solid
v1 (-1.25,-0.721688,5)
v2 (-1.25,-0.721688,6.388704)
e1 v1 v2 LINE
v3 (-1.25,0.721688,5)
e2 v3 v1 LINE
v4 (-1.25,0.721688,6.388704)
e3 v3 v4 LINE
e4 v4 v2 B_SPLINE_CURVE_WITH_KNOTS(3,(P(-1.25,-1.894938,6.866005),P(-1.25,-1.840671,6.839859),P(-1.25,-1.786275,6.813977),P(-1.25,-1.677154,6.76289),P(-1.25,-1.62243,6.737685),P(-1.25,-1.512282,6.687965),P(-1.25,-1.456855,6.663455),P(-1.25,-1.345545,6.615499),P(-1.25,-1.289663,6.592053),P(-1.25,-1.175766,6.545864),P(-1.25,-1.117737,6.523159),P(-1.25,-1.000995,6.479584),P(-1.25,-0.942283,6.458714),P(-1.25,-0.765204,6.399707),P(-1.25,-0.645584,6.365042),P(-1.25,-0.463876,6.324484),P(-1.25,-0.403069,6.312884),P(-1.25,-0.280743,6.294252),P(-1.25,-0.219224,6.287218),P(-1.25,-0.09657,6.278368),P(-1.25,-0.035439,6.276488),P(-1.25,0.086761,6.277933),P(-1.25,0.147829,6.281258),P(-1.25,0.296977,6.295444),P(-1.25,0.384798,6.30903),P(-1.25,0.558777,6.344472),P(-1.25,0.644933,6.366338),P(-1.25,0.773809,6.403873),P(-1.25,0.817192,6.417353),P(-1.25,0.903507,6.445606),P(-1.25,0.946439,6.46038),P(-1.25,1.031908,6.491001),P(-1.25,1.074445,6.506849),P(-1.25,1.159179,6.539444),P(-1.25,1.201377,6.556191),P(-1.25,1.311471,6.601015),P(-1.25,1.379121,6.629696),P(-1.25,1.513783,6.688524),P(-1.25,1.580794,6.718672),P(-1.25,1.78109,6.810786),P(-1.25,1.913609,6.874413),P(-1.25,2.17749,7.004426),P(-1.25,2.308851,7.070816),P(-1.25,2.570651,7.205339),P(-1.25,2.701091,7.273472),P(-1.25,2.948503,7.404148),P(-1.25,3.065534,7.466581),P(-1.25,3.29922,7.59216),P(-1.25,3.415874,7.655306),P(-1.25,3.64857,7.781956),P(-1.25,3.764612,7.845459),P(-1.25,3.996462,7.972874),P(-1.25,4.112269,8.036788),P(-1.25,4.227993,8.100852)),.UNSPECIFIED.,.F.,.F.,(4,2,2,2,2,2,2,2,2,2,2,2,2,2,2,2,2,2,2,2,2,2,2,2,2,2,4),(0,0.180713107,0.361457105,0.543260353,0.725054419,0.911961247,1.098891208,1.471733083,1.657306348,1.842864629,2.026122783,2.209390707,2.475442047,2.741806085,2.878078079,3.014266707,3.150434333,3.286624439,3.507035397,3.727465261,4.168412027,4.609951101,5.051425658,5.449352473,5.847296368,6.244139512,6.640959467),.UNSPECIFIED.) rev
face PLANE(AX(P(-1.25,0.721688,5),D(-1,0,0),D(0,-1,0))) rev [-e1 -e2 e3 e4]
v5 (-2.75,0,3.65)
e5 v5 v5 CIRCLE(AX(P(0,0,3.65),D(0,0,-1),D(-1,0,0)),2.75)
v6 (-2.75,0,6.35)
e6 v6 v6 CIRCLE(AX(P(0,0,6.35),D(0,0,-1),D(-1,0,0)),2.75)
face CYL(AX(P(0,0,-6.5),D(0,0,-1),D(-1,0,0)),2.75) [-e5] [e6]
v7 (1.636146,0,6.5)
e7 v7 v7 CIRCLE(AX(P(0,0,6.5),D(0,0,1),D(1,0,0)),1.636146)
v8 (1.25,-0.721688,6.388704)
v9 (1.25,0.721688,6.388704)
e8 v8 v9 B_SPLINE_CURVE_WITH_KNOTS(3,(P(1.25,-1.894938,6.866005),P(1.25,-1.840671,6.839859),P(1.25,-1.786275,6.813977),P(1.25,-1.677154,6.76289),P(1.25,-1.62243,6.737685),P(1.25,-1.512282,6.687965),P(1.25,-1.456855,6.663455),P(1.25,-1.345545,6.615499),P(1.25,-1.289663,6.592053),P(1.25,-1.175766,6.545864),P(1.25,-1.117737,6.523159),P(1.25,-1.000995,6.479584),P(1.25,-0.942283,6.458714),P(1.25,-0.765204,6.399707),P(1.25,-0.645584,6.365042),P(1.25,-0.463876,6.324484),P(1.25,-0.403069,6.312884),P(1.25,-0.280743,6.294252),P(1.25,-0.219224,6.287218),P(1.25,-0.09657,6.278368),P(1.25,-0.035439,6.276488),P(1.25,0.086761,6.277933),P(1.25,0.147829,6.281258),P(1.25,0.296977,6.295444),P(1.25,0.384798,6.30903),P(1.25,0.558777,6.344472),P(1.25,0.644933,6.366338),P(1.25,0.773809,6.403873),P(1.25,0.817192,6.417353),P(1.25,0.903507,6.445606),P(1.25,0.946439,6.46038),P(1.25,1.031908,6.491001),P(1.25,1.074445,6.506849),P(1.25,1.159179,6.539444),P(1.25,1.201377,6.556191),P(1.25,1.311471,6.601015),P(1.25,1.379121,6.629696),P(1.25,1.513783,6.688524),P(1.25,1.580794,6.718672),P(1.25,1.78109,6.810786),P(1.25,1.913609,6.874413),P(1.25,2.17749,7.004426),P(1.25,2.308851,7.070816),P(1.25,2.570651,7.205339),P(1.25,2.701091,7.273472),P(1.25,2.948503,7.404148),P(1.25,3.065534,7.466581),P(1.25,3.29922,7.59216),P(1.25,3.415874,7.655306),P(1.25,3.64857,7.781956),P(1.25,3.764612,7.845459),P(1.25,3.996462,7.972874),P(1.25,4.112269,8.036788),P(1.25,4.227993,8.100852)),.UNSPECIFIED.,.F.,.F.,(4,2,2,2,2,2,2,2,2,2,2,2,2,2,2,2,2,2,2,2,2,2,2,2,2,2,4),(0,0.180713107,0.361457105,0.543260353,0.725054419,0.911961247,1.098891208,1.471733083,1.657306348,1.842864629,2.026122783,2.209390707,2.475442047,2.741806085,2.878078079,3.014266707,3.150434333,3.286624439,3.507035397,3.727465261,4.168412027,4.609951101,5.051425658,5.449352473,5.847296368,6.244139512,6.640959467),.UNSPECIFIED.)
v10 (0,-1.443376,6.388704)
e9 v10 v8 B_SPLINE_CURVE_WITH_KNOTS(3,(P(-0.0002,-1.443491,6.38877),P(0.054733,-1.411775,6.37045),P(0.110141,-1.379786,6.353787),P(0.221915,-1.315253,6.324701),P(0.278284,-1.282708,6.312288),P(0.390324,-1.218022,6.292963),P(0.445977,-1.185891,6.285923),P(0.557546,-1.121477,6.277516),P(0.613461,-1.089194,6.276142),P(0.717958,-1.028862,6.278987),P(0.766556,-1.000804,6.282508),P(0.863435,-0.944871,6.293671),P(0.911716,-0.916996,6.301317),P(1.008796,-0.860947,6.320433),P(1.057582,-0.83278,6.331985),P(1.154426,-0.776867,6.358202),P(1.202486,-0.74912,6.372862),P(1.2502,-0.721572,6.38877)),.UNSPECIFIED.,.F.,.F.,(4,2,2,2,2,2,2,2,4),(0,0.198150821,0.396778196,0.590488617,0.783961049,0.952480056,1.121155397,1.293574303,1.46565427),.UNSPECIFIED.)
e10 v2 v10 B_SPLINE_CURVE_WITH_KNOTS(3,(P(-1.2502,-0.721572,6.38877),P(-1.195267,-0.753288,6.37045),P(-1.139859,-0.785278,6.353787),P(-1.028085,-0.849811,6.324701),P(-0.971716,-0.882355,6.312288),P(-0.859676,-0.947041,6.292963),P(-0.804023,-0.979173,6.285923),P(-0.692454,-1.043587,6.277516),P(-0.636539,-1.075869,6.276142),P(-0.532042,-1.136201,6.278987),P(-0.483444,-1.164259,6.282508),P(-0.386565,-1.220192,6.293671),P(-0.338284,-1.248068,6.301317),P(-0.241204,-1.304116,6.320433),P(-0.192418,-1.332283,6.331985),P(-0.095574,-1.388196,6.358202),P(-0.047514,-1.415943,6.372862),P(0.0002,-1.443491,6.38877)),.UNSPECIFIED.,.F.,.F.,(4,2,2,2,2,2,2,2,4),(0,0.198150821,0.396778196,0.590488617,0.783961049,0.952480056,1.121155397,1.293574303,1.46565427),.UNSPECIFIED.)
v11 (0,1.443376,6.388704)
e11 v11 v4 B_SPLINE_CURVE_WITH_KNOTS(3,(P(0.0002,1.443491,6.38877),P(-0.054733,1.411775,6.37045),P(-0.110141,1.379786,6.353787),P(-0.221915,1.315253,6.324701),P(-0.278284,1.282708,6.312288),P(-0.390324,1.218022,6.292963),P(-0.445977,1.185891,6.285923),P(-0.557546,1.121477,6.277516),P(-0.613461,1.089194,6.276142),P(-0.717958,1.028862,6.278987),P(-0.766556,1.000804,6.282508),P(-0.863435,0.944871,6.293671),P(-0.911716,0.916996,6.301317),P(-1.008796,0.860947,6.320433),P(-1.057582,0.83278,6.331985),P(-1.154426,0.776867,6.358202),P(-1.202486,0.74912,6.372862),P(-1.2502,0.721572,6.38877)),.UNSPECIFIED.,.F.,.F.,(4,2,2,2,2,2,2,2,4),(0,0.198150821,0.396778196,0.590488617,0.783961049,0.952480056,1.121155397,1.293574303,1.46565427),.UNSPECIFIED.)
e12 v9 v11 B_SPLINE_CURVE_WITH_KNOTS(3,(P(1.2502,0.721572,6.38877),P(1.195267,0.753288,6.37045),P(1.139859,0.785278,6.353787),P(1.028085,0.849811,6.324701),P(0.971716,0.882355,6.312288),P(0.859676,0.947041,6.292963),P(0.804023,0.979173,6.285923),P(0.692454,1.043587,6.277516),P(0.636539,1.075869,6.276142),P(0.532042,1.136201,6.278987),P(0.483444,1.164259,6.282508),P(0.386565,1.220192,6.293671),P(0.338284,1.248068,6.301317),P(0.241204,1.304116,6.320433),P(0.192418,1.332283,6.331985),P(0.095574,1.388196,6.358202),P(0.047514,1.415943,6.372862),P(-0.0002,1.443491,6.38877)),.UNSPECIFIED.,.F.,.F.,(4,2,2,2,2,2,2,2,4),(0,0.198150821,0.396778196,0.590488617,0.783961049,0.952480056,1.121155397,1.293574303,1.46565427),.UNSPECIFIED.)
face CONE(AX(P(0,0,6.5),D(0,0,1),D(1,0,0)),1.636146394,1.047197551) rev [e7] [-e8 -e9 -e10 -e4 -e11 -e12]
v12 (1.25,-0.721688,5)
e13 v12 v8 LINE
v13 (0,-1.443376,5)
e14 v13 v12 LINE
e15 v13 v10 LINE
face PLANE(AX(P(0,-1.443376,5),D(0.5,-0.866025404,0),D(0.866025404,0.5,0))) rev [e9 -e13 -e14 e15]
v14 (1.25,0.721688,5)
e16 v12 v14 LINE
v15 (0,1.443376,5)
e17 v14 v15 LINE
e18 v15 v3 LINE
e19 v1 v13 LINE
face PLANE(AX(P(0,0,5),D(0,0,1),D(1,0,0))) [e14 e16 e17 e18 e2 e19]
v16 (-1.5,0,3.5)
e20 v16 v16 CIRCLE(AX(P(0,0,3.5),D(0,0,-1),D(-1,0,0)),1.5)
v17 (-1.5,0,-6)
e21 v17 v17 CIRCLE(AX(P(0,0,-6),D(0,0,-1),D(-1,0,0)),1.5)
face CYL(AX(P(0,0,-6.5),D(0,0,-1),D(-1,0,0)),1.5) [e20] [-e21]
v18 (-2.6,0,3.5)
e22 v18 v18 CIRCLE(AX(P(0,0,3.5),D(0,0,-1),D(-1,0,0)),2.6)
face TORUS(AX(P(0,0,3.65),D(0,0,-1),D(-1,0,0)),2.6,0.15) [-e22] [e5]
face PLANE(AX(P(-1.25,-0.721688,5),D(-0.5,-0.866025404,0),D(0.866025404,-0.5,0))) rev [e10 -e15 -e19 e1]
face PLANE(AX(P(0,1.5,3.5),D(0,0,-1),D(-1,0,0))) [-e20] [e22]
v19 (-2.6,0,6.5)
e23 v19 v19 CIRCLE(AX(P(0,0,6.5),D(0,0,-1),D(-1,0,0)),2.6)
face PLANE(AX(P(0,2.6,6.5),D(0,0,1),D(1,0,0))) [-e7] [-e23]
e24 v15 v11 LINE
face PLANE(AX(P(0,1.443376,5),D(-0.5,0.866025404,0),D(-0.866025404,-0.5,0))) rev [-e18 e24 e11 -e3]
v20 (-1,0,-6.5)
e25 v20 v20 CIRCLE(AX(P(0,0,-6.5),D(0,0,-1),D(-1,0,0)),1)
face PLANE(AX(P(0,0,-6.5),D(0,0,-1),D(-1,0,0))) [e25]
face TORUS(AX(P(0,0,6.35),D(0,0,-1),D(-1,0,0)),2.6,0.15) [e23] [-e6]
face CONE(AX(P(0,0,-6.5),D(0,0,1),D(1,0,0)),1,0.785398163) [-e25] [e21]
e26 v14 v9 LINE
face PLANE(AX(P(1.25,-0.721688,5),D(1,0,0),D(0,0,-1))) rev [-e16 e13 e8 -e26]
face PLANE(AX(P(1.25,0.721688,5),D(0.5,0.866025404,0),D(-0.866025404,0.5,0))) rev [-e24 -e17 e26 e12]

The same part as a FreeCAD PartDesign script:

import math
import FreeCAD as App
import Part
import Sketcher

V = App.Vector
Q = App.Units.Quantity

doc = App.newDocument("Part")
body = doc.addObject("PartDesign::Body", "Body")

sketch1 = doc.addObject("Sketcher::SketchObject", "Sketch")
body.addObject(sketch1)
sketch1.AttachmentSupport = (doc.YZ_Plane, [""])
sketch1.MapMode = "FlatFace"
sketch1.addGeometry([
    Part.LineSegment(V(0, -6.5, 0), V(1, -6.5, 0)),
    Part.LineSegment(V(1, -6.5, 0), V(1.5, -6, 0)),
    Part.LineSegment(V(1.5, -6, 0), V(1.5, 3.5, 0)),
    Part.LineSegment(V(1.5, 3.5, 0), V(2.6, 3.5, 0)),
    Part.ArcOfCircle(Part.Circle(V(2.6, 3.65, 0), V(0, 0, 1), 0.15), math.radians(-90), math.radians(0)),
    Part.LineSegment(V(2.75, 3.65, 0), V(2.75, 6.35, 0)),
    Part.ArcOfCircle(Part.Circle(V(2.6, 6.35, 0), V(0, 0, 1), 0.15), math.radians(0), math.radians(90)),
    Part.LineSegment(V(2.6, 6.5, 0), V(0, 6.5, 0)),
    Part.LineSegment(V(0, 6.5, 0), V(0, -6.5, 0)),
], False)
sketch1.addConstraint([
    Sketcher.Constraint("Coincident", 0, 2, 1, 1),
    Sketcher.Constraint("Coincident", 1, 2, 2, 1),
    Sketcher.Constraint("Coincident", 2, 2, 3, 1),
    Sketcher.Constraint("Tangent", 3, 2, 4, 1),
    Sketcher.Constraint("Tangent", 4, 2, 5, 1),
    Sketcher.Constraint("Tangent", 5, 2, 6, 1),
    Sketcher.Constraint("Tangent", 6, 2, 7, 1),
    Sketcher.Constraint("Coincident", 7, 2, 8, 1),
    Sketcher.Constraint("Coincident", 8, 2, 0, 1),
    Sketcher.Constraint("Horizontal", 0),
    Sketcher.Constraint("Vertical", 2),
    Sketcher.Constraint("Horizontal", 3),
    Sketcher.Constraint("Vertical", 5),
    Sketcher.Constraint("Horizontal", 7),
    Sketcher.Constraint("Vertical", 8),
    Sketcher.Constraint("Equal", 4, 6),
    Sketcher.Constraint("Symmetric", 7, 2, 8, 2, -1, 1),
    Sketcher.Constraint("DistanceX", 0, 1, 0, 2, Q("1 mm")),
    Sketcher.Constraint("DistanceY", 8, 2, 8, 1, Q("13 mm")),
    Sketcher.Constraint("Angle", 1, Q("45 deg")),
    Sketcher.Constraint("Radius", 4, Q("0.15 mm")),
    Sketcher.Constraint("DistanceX", 3, 1, 3, 2, Q("1.1 mm")),
    Sketcher.Constraint("DistanceX", 7, 2, 7, 1, Q("2.6 mm")),
    Sketcher.Constraint("DistanceY", 2, 1, 2, 2, Q("9.5 mm")),
])
revolution = doc.addObject("PartDesign::Revolution", "Revolution")
body.addObject(revolution)
revolution.Profile = sketch1
revolution.ReferenceAxis = (sketch1, ["V_Axis"])
revolution.Angle = 360

sketch2 = doc.addObject("Sketcher::SketchObject", "Sketch001")
body.addObject(sketch2)
sketch2.AttachmentSupport = (doc.XY_Plane, [""])
sketch2.MapMode = "FlatFace"
sketch2.AttachmentOffset = App.Placement(V(0, 0, 6.5), App.Rotation())
sketch2.addGeometry([
    Part.LineSegment(V(-1.25, 0.721688, 0), V(-1.25, -0.721688, 0)),
    Part.LineSegment(V(-1.25, -0.721688, 0), V(0, -1.443376, 0)),
    Part.LineSegment(V(0, -1.443376, 0), V(1.25, -0.721688, 0)),
    Part.LineSegment(V(1.25, -0.721688, 0), V(1.25, 0.721688, 0)),
    Part.LineSegment(V(1.25, 0.721688, 0), V(0, 1.443376, 0)),
    Part.LineSegment(V(0, 1.443376, 0), V(-1.25, 0.721688, 0)),
], False)
sketch2.addConstraint([
    Sketcher.Constraint("Coincident", 0, 2, 1, 1),
    Sketcher.Constraint("Coincident", 1, 2, 2, 1),
    Sketcher.Constraint("Coincident", 2, 2, 3, 1),
    Sketcher.Constraint("Coincident", 3, 2, 4, 1),
    Sketcher.Constraint("Coincident", 4, 2, 5, 1),
    Sketcher.Constraint("Coincident", 5, 2, 0, 1),
    Sketcher.Constraint("Vertical", 0),
    Sketcher.Constraint("Vertical", 3),
    Sketcher.Constraint("Symmetric", 0, 2, 3, 2, -1, 1),
    Sketcher.Constraint("Symmetric", 1, 2, 4, 2, -1, 1),
    Sketcher.Constraint("PointOnObject", 1, 2, -2),
    Sketcher.Constraint("Parallel", 2, 5),
    Sketcher.Constraint("Horizontal", 0, 2, 2, 2),
    Sketcher.Constraint("Angle", 1, Q("-30 deg")),
    Sketcher.Constraint("DistanceX", 0, 2, 2, 2, Q("2.5 mm")),
    Sketcher.Constraint("DistanceY", 0, 2, 0, 1, Q("1.443376 mm")),
])
pocket1 = doc.addObject("PartDesign::Pocket", "Pocket")
body.addObject(pocket1)
pocket1.Profile = sketch2
pocket1.Length = 1.5

sketch3 = doc.addObject("Sketcher::SketchObject", "Sketch002")
body.addObject(sketch3)
sketch3.AttachmentSupport = (doc.YZ_Plane, [""])
sketch3.MapMode = "FlatFace"
sketch3.addGeometry([
    Part.LineSegment(V(0, 6.5, 0), V(-1.636146, 6.5, 0)),
    Part.LineSegment(V(-1.636146, 6.5, 0), V(0, 5.55537, 0)),
    Part.LineSegment(V(0, 5.55537, 0), V(0, 6.5, 0)),
], False)
sketch3.addConstraint([
    Sketcher.Constraint("Coincident", 0, 2, 1, 1),
    Sketcher.Constraint("Coincident", 1, 2, 2, 1),
    Sketcher.Constraint("Coincident", 2, 2, 0, 1),
    Sketcher.Constraint("Horizontal", 0),
    Sketcher.Constraint("Vertical", 2),
    Sketcher.Constraint("PointOnObject", 1, 2, -2),
    Sketcher.Constraint("Angle", 1, Q("-30 deg")),
    Sketcher.Constraint("DistanceY", -1, 1, 0, 2, Q("6.5 mm")),
    Sketcher.Constraint("DistanceY", 2, 1, 2, 2, Q("0.94463 mm")),
])
groove = doc.addObject("PartDesign::Groove", "Groove")
body.addObject(groove)
groove.Profile = sketch3
groove.ReferenceAxis = (sketch3, ["V_Axis"])
groove.Angle = 360

doc.recompute()
